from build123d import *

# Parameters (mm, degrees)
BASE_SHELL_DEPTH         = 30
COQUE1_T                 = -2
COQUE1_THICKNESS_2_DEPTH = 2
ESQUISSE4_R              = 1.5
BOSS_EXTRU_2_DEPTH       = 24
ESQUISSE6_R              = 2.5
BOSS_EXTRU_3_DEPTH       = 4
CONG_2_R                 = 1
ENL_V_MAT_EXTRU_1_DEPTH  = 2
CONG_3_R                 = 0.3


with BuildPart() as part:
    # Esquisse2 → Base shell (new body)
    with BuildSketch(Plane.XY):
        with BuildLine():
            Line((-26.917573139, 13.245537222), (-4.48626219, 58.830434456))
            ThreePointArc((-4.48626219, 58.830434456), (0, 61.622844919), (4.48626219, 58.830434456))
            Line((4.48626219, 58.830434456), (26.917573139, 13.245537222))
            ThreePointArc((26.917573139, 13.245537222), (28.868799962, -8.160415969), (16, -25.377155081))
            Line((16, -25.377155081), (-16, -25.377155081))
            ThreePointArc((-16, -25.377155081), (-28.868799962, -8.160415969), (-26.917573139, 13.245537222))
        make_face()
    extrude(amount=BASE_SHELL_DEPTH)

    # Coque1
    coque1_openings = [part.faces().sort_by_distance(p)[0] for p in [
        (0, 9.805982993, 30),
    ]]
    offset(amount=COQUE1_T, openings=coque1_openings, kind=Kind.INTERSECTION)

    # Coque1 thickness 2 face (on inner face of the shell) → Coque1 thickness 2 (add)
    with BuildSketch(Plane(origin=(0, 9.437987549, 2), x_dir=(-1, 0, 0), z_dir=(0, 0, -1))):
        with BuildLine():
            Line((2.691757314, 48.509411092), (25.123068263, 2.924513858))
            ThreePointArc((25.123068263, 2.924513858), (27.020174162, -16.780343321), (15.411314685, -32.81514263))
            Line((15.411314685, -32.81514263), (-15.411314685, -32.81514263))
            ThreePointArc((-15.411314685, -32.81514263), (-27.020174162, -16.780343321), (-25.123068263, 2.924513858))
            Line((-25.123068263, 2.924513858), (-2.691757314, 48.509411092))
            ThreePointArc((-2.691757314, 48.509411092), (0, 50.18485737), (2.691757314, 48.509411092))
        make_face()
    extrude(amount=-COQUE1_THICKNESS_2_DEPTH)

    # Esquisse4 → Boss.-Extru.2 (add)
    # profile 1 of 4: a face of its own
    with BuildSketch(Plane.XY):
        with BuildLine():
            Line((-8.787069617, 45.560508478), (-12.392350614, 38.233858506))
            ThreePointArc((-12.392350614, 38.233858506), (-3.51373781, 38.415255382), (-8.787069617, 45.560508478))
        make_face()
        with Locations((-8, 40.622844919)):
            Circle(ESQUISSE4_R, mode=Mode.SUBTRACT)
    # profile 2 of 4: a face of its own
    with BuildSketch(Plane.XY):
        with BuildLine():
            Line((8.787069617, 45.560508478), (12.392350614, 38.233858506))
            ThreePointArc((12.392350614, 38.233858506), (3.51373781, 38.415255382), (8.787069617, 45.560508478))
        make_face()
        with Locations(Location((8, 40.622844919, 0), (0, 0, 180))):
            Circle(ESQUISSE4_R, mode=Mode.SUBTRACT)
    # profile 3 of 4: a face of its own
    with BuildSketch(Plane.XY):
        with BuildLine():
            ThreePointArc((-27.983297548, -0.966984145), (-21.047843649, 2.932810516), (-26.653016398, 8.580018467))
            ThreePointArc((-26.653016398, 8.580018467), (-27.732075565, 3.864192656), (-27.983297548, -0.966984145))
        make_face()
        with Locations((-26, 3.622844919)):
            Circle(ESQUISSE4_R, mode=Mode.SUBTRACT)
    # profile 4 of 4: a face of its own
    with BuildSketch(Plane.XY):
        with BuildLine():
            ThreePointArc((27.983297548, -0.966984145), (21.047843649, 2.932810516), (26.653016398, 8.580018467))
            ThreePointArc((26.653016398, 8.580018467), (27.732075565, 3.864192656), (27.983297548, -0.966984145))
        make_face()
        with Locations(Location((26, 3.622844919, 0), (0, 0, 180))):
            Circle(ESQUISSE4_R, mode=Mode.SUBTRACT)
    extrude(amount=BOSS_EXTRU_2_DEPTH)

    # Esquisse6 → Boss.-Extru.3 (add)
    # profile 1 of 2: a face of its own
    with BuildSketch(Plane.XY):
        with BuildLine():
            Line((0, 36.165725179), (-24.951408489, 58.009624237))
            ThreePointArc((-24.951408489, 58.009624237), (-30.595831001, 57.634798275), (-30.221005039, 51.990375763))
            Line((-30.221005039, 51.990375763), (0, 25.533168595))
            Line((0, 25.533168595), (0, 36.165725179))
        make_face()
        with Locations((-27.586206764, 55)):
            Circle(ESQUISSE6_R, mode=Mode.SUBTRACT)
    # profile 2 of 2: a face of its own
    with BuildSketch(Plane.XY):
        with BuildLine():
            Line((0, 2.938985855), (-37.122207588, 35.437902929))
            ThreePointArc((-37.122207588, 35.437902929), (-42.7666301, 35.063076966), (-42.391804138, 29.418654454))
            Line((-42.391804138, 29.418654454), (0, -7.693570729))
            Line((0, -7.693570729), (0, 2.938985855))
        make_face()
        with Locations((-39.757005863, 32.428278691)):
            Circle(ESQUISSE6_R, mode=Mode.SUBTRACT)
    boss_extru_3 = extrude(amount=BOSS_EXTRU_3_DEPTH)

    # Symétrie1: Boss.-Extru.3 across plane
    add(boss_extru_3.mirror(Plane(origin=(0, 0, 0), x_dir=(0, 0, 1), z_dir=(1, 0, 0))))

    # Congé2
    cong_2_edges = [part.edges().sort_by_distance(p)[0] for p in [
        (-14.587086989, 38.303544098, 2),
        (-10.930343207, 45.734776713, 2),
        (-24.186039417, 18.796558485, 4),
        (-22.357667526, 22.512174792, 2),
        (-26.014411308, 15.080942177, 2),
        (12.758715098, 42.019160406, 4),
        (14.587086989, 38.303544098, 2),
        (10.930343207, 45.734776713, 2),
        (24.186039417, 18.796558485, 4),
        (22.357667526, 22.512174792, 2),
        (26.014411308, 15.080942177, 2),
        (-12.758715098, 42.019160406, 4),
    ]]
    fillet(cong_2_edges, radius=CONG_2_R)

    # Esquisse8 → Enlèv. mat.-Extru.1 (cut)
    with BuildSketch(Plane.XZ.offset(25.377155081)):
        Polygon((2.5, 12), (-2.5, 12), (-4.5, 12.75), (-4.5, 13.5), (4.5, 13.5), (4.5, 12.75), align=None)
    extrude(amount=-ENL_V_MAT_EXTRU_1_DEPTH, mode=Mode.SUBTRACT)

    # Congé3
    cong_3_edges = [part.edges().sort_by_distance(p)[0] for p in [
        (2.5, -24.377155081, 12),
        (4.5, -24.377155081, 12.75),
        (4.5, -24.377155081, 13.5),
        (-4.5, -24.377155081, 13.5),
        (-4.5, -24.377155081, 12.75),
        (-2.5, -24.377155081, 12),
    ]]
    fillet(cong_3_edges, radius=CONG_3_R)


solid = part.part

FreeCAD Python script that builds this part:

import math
import FreeCAD as App
import Part
import Sketcher


def edges_at(feature, points):
    """Names of the edges that pass closest to the given points."""
    edges = feature.Shape.Edges
    near = lambda p: min(range(len(edges)), key=lambda i: edges[i].distToShape(Part.Vertex(*p))[0])
    return sorted({f"Edge{near(p) + 1}" for p in points})


def faces_at(feature, points):
    """Names of the faces that lie closest to the given points."""
    faces = feature.Shape.Faces
    near = lambda p: min(range(len(faces)), key=lambda i: faces[i].distToShape(Part.Vertex(*p))[0])
    return sorted({f"Face{near(p) + 1}" for p in points})

doc = App.newDocument("Part")
params = doc.addObject("Spreadsheet::Sheet", "Params")
for row, (alias, value) in enumerate([
    ("sketch1_radius", "30 mm"),
    ("sketch1_radius2", "5 mm"),
    ("sketch1_width", "32 mm"),
    ("pad1_length", "30 mm"),
    ("thickness_wall", "2 mm"),
    ("sketch2_radius", "3 mm"),
    ("sketch2_radius2", "28 mm"),
    ("pad2_length", "2 mm"),
    ("sketch3_diameter", "3 mm"),
    ("sketch3_radius", "5 mm"),
    ("sketch3_radius2", "28 mm"),
    ("pad3_length", "24 mm"),
    ("sketch4_diameter", "5 mm"),
    ("sketch4_radius", "4 mm"),
    ("pad4_length", "4 mm"),
    ("fillet_radius", "1 mm"),
    ("sketch5_width", "5 mm"),
    ("sketch5_width2", "9 mm"),
    ("sketch5_height", "0.75 mm"),
    ("pocket1_length", "2 mm"),
    ("fillet2_radius", "0.3 mm"),
], start=1):
    params.set(f"A{row}", alias)
    params.set(f"B{row}", "=" + value)
    params.setAlias(f"B{row}", alias)

body = doc.addObject("PartDesign::Body", "Body")

# Sketch on XY plane
sketch1 = doc.addObject("Sketcher::SketchObject", "Sketch")
body.addObject(sketch1)
sketch1.AttachmentSupport = (doc.XY_Plane, [""])
sketch1.MapMode = "FlatFace"
sketch1.addGeometry(Part.LineSegment(App.Vector(-4, 59, 0), App.Vector(-27, 13, 0)), False)
sketch1.addGeometry(Part.ArcOfCircle(Part.Circle(App.Vector(0, 0, 0), App.Vector(0, 0, 1), 30), math.radians(154), math.radians(238)), False)
sketch1.addGeometry(Part.LineSegment(App.Vector(-16, -25, 0), App.Vector(16, -25, 0)), False)
sketch1.addGeometry(Part.ArcOfCircle(Part.Circle(App.Vector(0, 0, 0), App.Vector(0, 0, 1), 30), math.radians(-58), math.radians(26)), False)
sketch1.addGeometry(Part.LineSegment(App.Vector(27, 13, 0), App.Vector(4, 59, 0)), False)
sketch1.addGeometry(Part.ArcOfCircle(Part.Circle(App.Vector(0, 57, 0), App.Vector(0, 0, 1), 5), math.radians(26), math.radians(154)), False)
sketch1.addConstraint(Sketcher.Constraint("Tangent", 0, 2, 1, 1))
sketch1.addConstraint(Sketcher.Constraint("Coincident", 1, 2, 2, 1))
sketch1.addConstraint(Sketcher.Constraint("Coincident", 2, 2, 3, 1))
sketch1.addConstraint(Sketcher.Constraint("Tangent", 3, 2, 4, 1))
sketch1.addConstraint(Sketcher.Constraint("Tangent", 4, 2, 5, 1))
sketch1.addConstraint(Sketcher.Constraint("Tangent", 5, 2, 0, 1))
sketch1.addConstraint(Sketcher.Constraint("Horizontal", 2))
sketch1.addConstraint(Sketcher.Constraint("Coincident", 1, 3, -1, 1))
sketch1.addConstraint(Sketcher.Constraint("Coincident", 3, 3, -1, 1))
sketch1.addConstraint(Sketcher.Constraint("Equal", 1, 3))
sketch1.addConstraint(Sketcher.Constraint("PointOnObject", 5, 3, -2))
sketch1.addConstraint(Sketcher.Constraint("Radius", 1, 30.0))
sketch1.addConstraint(Sketcher.Constraint("Radius", 5, 5.0))
sketch1.addConstraint(Sketcher.Constraint("DistanceX", 2, 1, 2, 2, 32.0))
sketch1.addConstraint(Sketcher.Constraint("DistanceY", 1, 2, 5, 3, 82.0))
sketch1.setExpression("Constraints[11]", "Params.sketch1_radius")
sketch1.setExpression("Constraints[12]", "Params.sketch1_radius2")
sketch1.setExpression("Constraints[13]", "Params.sketch1_width")
pad1 = doc.addObject("PartDesign::Pad", "Pad")
body.addObject(pad1)
pad1.Profile = sketch1
pad1.setExpression("Length", "Params.pad1_length")
doc.recompute()

thickness = doc.addObject("PartDesign::Thickness", "Thickness")
body.addObject(thickness)
thickness.Base = (pad1, faces_at(pad1, [(0, 18.123, 30)]))
thickness.setExpression("Value", "Params.thickness_wall")
thickness.Reversed = True
thickness.Join = "Intersection"

# Sketch on XY plane
sketch2 = doc.addObject("Sketcher::SketchObject", "Sketch001")
body.addObject(sketch2)
sketch2.AttachmentSupport = (doc.XY_Plane, [""])
sketch2.MapMode = "FlatFace"
sketch2.AttachmentOffset = App.Placement(App.Vector(0, 0, 2), App.Rotation())
sketch2.addGeometry(Part.LineSegment(App.Vector(-25.1, 12.4, 0), App.Vector(-2.7, 57.9, 0)), False)
sketch2.addGeometry(Part.ArcOfCircle(Part.Circle(App.Vector(0, 56.6, 0), App.Vector(0, 0, 1), 3), math.radians(26), math.radians(154)), False)
sketch2.addGeometry(Part.LineSegment(App.Vector(2.7, 57.9, 0), App.Vector(25.1, 12.4, 0)), False)
sketch2.addGeometry(Part.ArcOfCircle(Part.Circle(App.Vector(0, 0, 0), App.Vector(0, 0, 1), 28), math.radians(-57), math.radians(26)), False)
sketch2.addGeometry(Part.LineSegment(App.Vector(15.4, -23.4, 0), App.Vector(-15.4, -23.4, 0)), False)
sketch2.addGeometry(Part.ArcOfCircle(Part.Circle(App.Vector(0, 0, 0), App.Vector(0, 0, 1), 28), math.radians(154), math.radians(237)), False)
sketch2.addConstraint(Sketcher.Constraint("Tangent", 0, 2, 1, 2))
sketch2.addConstraint(Sketcher.Constraint("Tangent", 1, 1, 2, 1))
sketch2.addConstraint(Sketcher.Constraint("Tangent", 2, 2, 3, 2))
sketch2.addConstraint(Sketcher.Constraint("Coincident", 3, 1, 4, 1))
sketch2.addConstraint(Sketcher.Constraint("Coincident", 4, 2, 5, 2))
sketch2.addConstraint(Sketcher.Constraint("Tangent", 5, 1, 0, 1))
sketch2.addConstraint(Sketcher.Constraint("Horizontal", 4))
sketch2.addConstraint(Sketcher.Constraint("Coincident", 3, 3, -1, 1))
sketch2.addConstraint(Sketcher.Constraint("Coincident", 5, 3, -1, 1))
sketch2.addConstraint(Sketcher.Constraint("Equal", 3, 5))
sketch2.addConstraint(Sketcher.Constraint("PointOnObject", 1, 3, -2))
sketch2.addConstraint(Sketcher.Constraint("Radius", 1, 3.0))
sketch2.addConstraint(Sketcher.Constraint("Radius", 3, 28.0))
sketch2.addConstraint(Sketcher.Constraint("DistanceY", 3, 1, 1, 3, 80.0))
sketch2.addConstraint(Sketcher.Constraint("DistanceX", 4, 2, 4, 1, 30.822629))
sketch2.setExpression("Constraints[11]", "Params.sketch2_radius")
sketch2.setExpression("Constraints[12]", "Params.sketch2_radius2")
pad2 = doc.addObject("PartDesign::Pad", "Pad001")
body.addObject(pad2)
pad2.Profile = sketch2
pad2.setExpression("Length", "Params.pad2_length")

# Sketch on XY plane
sketch3 = doc.addObject("Sketcher::SketchObject", "Sketch002")
body.addObject(sketch3)
sketch3.AttachmentSupport = (doc.XY_Plane, [""])
sketch3.MapMode = "FlatFace"
sketch3.addGeometry(Part.LineSegment(App.Vector(-8.8, 45.6, 0), App.Vector(-12.4, 38.2, 0)), False)
sketch3.addGeometry(Part.ArcOfCircle(Part.Circle(App.Vector(-8, 40.6, 0), App.Vector(0, 0, 1), 5), math.radians(-151), math.radians(99)), False)
sketch3.addGeometry(Part.Circle(App.Vector(-8, 40.6, 0), App.Vector(0, 0, 1), 1.5), False)
sketch3.addGeometry(Part.LineSegment(App.Vector(12.4, 38.2, 0), App.Vector(8.8, 45.6, 0)), False)
sketch3.addGeometry(Part.ArcOfCircle(Part.Circle(App.Vector(8, 40.6, 0), App.Vector(0, 0, 1), 5), math.radians(81), math.radians(331)), False)
sketch3.addGeometry(Part.Circle(App.Vector(8, 40.6, 0), App.Vector(0, 0, 1), 1.5), False)
sketch3.addGeometry(Part.ArcOfCircle(Part.Circle(App.Vector(-26, 3.6, 0), App.Vector(0, 0, 1), 5), math.radians(-113), math.radians(98)), False)
sketch3.addGeometry(Part.ArcOfCircle(Part.Circle(App.Vector(0, 0, 0), App.Vector(0, 0, 1), 28), math.radians(162.16), math.radians(181.98)), False)
sketch3.addGeometry(Part.Circle(App.Vector(-26, 3.6, 0), App.Vector(0, 0, 1), 1.5), False)
sketch3.addGeometry(Part.ArcOfCircle(Part.Circle(App.Vector(26, 3.6, 0), App.Vector(0, 0, 1), 5), math.radians(82), math.radians(293)), False)
sketch3.addGeometry(Part.ArcOfCircle(Part.Circle(App.Vector(0, 0, 0), App.Vector(0, 0, 1), 28), math.radians(-1.98), math.radians(17.84)), False)
sketch3.addGeometry(Part.Circle(App.Vector(26, 3.6, 0), App.Vector(0, 0, 1), 1.5), False)
sketch3.addConstraint(Sketcher.Constraint("Coincident", 0, 1, 1, 2))
sketch3.addConstraint(Sketcher.Constraint("Coincident", 1, 1, 0, 2))
sketch3.addConstraint(Sketcher.Constraint("Coincident", 3, 1, 4, 2))
sketch3.addConstraint(Sketcher.Constraint("Coincident", 4, 1, 3, 2))
sketch3.addConstraint(Sketcher.Constraint("Coincident", 6, 1, 7, 2))
sketch3.addConstraint(Sketcher.Constraint("Coincident", 7, 1, 6, 2))
sketch3.addConstraint(Sketcher.Constraint("Coincident", 9, 1, 10, 2))
sketch3.addConstraint(Sketcher.Constraint("Coincident", 10, 1, 9, 2))
sketch3.addConstraint(Sketcher.Constraint("Coincident", 7, 3, -1, 1))
sketch3.addConstraint(Sketcher.Constraint("Coincident", 10, 3, -1, 1))
sketch3.addConstraint(Sketcher.Constraint("Coincident", 2, 3, 1, 3))
sketch3.addConstraint(Sketcher.Constraint("Coincident", 5, 3, 4, 3))
sketch3.addConstraint(Sketcher.Constraint("Coincident", 8, 3, 6, 3))
sketch3.addConstraint(Sketcher.Constraint("Coincident", 11, 3, 9, 3))
sketch3.addConstraint(Sketcher.Constraint("Equal", 1, 4))
sketch3.addConstraint(Sketcher.Constraint("Equal", 2, 5))
sketch3.addConstraint(Sketcher.Constraint("Equal", 4, 6))
sketch3.addConstraint(Sketcher.Constraint("Equal", 5, 8))
sketch3.addConstraint(Sketcher.Constraint("Equal", 6, 9))
sketch3.addConstraint(Sketcher.Constraint("Equal", 7, 10))
sketch3.addConstraint(Sketcher.Constraint("Equal", 8, 11))
sketch3.addConstraint(Sketcher.Constraint("Symmetric", 1, 3, 4, 3, -2))
sketch3.addConstraint(Sketcher.Constraint("Symmetric", 6, 3, 9, 3, -2))
sketch3.addConstraint(Sketcher.Constraint("Horizontal", 1, 1, 3, 1))
sketch3.addConstraint(Sketcher.Constraint("Horizontal", 0, 1, 4, 1))
sketch3.addConstraint(Sketcher.Constraint("Diameter", 2, 3.0))
sketch3.addConstraint(Sketcher.Constraint("Radius", 1, 5.0))
sketch3.addConstraint(Sketcher.Constraint("Radius", 7, 28.0))
sketch3.addConstraint(Sketcher.Constraint("DistanceX", 1, 3, -1, 1, 8.0))
sketch3.addConstraint(Sketcher.Constraint("DistanceX", 6, 3, -1, 1, 26.0))
sketch3.addConstraint(Sketcher.Constraint("DistanceY", 6, 3, 1, 3, 37.0))
sketch3.addConstraint(Sketcher.Constraint("Distance", 0, 8.165651))
sketch3.addConstraint(Sketcher.Constraint("DistanceX", 0, 1, -1, 1, 8.78707))
sketch3.addConstraint(Sketcher.Constraint("DistanceY", -1, 1, 0, 1, 45.560508))
sketch3.setExpression("Constraints[25]", "Params.sketch3_diameter")
sketch3.setExpression("Constraints[26]", "Params.sketch3_radius")
sketch3.setExpression("Constraints[27]", "Params.sketch3_radius2")
pad3 = doc.addObject("PartDesign::Pad", "Pad002")
body.addObject(pad3)
pad3.Profile = sketch3
pad3.setExpression("Length", "Params.pad3_length")

# Sketch on XY plane
sketch4 = doc.addObject("Sketcher::SketchObject", "Sketch003")
body.addObject(sketch4)
sketch4.AttachmentSupport = (doc.XY_Plane, [""])
sketch4.MapMode = "FlatFace"
sketch4.addGeometry(Part.LineSegment(App.Vector(0, 36.2, 0), App.Vector(-25, 58, 0)), False)
sketch4.addGeometry(Part.ArcOfCircle(Part.Circle(App.Vector(-27.6, 55, 0), App.Vector(0, 0, 1), 4), math.radians(49), math.radians(229)), False)
sketch4.addGeometry(Part.LineSegment(App.Vector(-30.2, 52, 0), App.Vector(0, 25.5, 0)), False)
sketch4.addGeometry(Part.LineSegment(App.Vector(0, 25.5, 0), App.Vector(0, 36.2, 0)), False)
sketch4.addGeometry(Part.Circle(App.Vector(-27.6, 55, 0), App.Vector(0, 0, 1), 2.5), False)
sketch4.addGeometry(Part.LineSegment(App.Vector(0, 2.9, 0), App.Vector(-37.1, 35.4, 0)), False)
sketch4.addGeometry(Part.ArcOfCircle(Part.Circle(App.Vector(-39.8, 32.4, 0), App.Vector(0, 0, 1), 4), math.radians(49), math.radians(229)), False)
sketch4.addGeometry(Part.LineSegment(App.Vector(-42.4, 29.4, 0), App.Vector(0, -7.7, 0)), False)
sketch4.addGeometry(Part.LineSegment(App.Vector(0, -7.7, 0), App.Vector(0, 2.9, 0)), False)
sketch4.addGeometry(Part.Circle(App.Vector(-39.8, 32.4, 0), App.Vector(0, 0, 1), 2.5), False)
sketch4.addConstraint(Sketcher.Constraint("Tangent", 0, 2, 1, 1))
sketch4.addConstraint(Sketcher.Constraint("Tangent", 1, 2, 2, 1))
sketch4.addConstraint(Sketcher.Constraint("Coincident", 2, 2, 3, 1))
sketch4.addConstraint(Sketcher.Constraint("Coincident", 3, 2, 0, 1))
sketch4.addConstraint(Sketcher.Constraint("Tangent", 5, 2, 6, 1))
sketch4.addConstraint(Sketcher.Constraint("Tangent", 6, 2, 7, 1))
sketch4.addConstraint(Sketcher.Constraint("Coincident", 7, 2, 8, 1))
sketch4.addConstraint(Sketcher.Constraint("Coincident", 8, 2, 5, 1))
sketch4.addConstraint(Sketcher.Constraint("Vertical", 3))
sketch4.addConstraint(Sketcher.Constraint("Vertical", 8))
sketch4.addConstraint(Sketcher.Constraint("Coincident", 4, 3, 1, 3))
sketch4.addConstraint(Sketcher.Constraint("Coincident", 9, 3, 6, 3))
sketch4.addConstraint(Sketcher.Constraint("Equal", 1, 6))
sketch4.addConstraint(Sketcher.Constraint("Equal", 4, 9))
sketch4.addConstraint(Sketcher.Constraint("PointOnObject", 2, 2, -2))
sketch4.addConstraint(Sketcher.Constraint("PointOnObject", 7, 2, -2))
sketch4.addConstraint(Sketcher.Constraint("Parallel", 0, 2))
sketch4.addConstraint(Sketcher.Constraint("Parallel", 2, 5))
sketch4.addConstraint(Sketcher.Constraint("Parallel", 5, 7))
sketch4.addConstraint(Sketcher.Constraint("Diameter", 4, 5.0))
sketch4.addConstraint(Sketcher.Constraint("Radius", 1, 4.0))
sketch4.addConstraint(Sketcher.Constraint("DistanceY", -1, 1, 1, 3, 55.0))
sketch4.addConstraint(Sketcher.Constraint("DistanceX", 6, 3, 1, 2, 9.536001))
sketch4.addConstraint(Sketcher.Constraint("DistanceX", 6, 3, 1, 3, 12.170799))
sketch4.addConstraint(Sketcher.Constraint("DistanceY", 3, 2, 0, 2, 21.843899))
sketch4.addConstraint(Sketcher.Constraint("DistanceY", -1, 1, 6, 3, 32.428279))
sketch4.setExpression("Constraints[19]", "Params.sketch4_diameter")
sketch4.setExpression("Constraints[20]", "Params.sketch4_radius")
pad4 = doc.addObject("PartDesign::Pad", "Pad003")
body.addObject(pad4)
pad4.Profile = sketch4
pad4.setExpression("Length", "Params.pad4_length")
doc.recompute()

mirrored = doc.addObject("PartDesign::Mirrored", "Mirrored")
body.addObject(mirrored)
mirrored.Originals = [pad4]
mirrored.MirrorPlane = (doc.YZ_Plane, [""])
body.Tip = mirrored
doc.recompute()

fillet = doc.addObject("PartDesign::Fillet", "Fillet")
body.addObject(fillet)
fillet.Base = (mirrored, edges_at(mirrored, [
    (-14.587, 38.304, 2),
    (-10.93, 45.735, 2),
    (-24.186, 18.797, 4),
    (-22.358, 22.512, 2),
    (-26.014, 15.081, 2),
    (12.759, 42.019, 4),
    (14.587, 38.304, 2),
    (10.93, 45.735, 2),
    (24.186, 18.797, 4),
    (22.358, 22.512, 2),
    (26.014, 15.081, 2),
    (-12.759, 42.019, 4),
]))
fillet.setExpression("Radius", "Params.fillet_radius")

# Sketch on XZ plane
sketch5 = doc.addObject("Sketcher::SketchObject", "Sketch004")
body.addObject(sketch5)
sketch5.AttachmentSupport = (doc.XZ_Plane, [""])
sketch5.MapMode = "FlatFace"
sketch5.AttachmentOffset = App.Placement(App.Vector(0, 0, 25.377155), App.Rotation())
sketch5.addGeometry(Part.LineSegment(App.Vector(-2.5, 12, 0), App.Vector(2.5, 12, 0)), False)
sketch5.addGeometry(Part.LineSegment(App.Vector(2.5, 12, 0), App.Vector(4.5, 12.8, 0)), False)
sketch5.addGeometry(Part.LineSegment(App.Vector(4.5, 12.8, 0), App.Vector(4.5, 13.5, 0)), False)
sketch5.addGeometry(Part.LineSegment(App.Vector(4.5, 13.5, 0), App.Vector(-4.5, 13.5, 0)), False)
sketch5.addGeometry(Part.LineSegment(App.Vector(-4.5, 13.5, 0), App.Vector(-4.5, 12.8, 0)), False)
sketch5.addGeometry(Part.LineSegment(App.Vector(-4.5, 12.8, 0), App.Vector(-2.5, 12, 0)), False)
sketch5.addConstraint(Sketcher.Constraint("Coincident", 0, 2, 1, 1))
sketch5.addConstraint(Sketcher.Constraint("Coincident", 1, 2, 2, 1))
sketch5.addConstraint(Sketcher.Constraint("Coincident", 2, 2, 3, 1))
sketch5.addConstraint(Sketcher.Constraint("Coincident", 3, 2, 4, 1))
sketch5.addConstraint(Sketcher.Constraint("Coincident", 4, 2, 5, 1))
sketch5.addConstraint(Sketcher.Constraint("Coincident", 5, 2, 0, 1))
sketch5.addConstraint(Sketcher.Constraint("Horizontal", 0))
sketch5.addConstraint(Sketcher.Constraint("Vertical", 2))
sketch5.addConstraint(Sketcher.Constraint("Horizontal", 3))
sketch5.addConstraint(Sketcher.Constraint("Vertical", 4))
sketch5.addConstraint(Sketcher.Constraint("Symmetric", 1, 2, 4, 2, -2))
sketch5.addConstraint(Sketcher.Constraint("Equal", 1, 5))
sketch5.addConstraint(Sketcher.Constraint("DistanceX", 0, 1, 0, 2, 5.0))
sketch5.addConstraint(Sketcher.Constraint("DistanceX", 3, 2, 3, 1, 9.0))
sketch5.addConstraint(Sketcher.Constraint("DistanceY", -1, 1, 0, 2, 12.0))
sketch5.addConstraint(Sketcher.Constraint("DistanceY", 2, 1, 2, 2, 0.75))
sketch5.addConstraint(Sketcher.Constraint("DistanceY", -1, 1, 2, 2, 13.5))
sketch5.setExpression("Constraints[12]", "Params.sketch5_width")
sketch5.setExpression("Constraints[13]", "Params.sketch5_width2")
sketch5.setExpression("Constraints[15]", "Params.sketch5_height")
pocket1 = doc.addObject("PartDesign::Pocket", "Pocket")
body.addObject(pocket1)
pocket1.Profile = sketch5
pocket1.setExpression("Length", "Params.pocket1_length")
doc.recompute()

fillet2 = doc.addObject("PartDesign::Fillet", "Fillet001")
body.addObject(fillet2)
fillet2.Base = (pocket1, edges_at(pocket1, [
    (2.5, -24.377, 12),
    (4.5, -24.377, 12.75),
    (4.5, -24.377, 13.5),
    (-4.5, -24.377, 13.5),
    (-4.5, -24.377, 12.75),
    (-2.5, -24.377, 12),
]))
fillet2.setExpression("Radius", "Params.fillet2_radius")

doc.recompute()
